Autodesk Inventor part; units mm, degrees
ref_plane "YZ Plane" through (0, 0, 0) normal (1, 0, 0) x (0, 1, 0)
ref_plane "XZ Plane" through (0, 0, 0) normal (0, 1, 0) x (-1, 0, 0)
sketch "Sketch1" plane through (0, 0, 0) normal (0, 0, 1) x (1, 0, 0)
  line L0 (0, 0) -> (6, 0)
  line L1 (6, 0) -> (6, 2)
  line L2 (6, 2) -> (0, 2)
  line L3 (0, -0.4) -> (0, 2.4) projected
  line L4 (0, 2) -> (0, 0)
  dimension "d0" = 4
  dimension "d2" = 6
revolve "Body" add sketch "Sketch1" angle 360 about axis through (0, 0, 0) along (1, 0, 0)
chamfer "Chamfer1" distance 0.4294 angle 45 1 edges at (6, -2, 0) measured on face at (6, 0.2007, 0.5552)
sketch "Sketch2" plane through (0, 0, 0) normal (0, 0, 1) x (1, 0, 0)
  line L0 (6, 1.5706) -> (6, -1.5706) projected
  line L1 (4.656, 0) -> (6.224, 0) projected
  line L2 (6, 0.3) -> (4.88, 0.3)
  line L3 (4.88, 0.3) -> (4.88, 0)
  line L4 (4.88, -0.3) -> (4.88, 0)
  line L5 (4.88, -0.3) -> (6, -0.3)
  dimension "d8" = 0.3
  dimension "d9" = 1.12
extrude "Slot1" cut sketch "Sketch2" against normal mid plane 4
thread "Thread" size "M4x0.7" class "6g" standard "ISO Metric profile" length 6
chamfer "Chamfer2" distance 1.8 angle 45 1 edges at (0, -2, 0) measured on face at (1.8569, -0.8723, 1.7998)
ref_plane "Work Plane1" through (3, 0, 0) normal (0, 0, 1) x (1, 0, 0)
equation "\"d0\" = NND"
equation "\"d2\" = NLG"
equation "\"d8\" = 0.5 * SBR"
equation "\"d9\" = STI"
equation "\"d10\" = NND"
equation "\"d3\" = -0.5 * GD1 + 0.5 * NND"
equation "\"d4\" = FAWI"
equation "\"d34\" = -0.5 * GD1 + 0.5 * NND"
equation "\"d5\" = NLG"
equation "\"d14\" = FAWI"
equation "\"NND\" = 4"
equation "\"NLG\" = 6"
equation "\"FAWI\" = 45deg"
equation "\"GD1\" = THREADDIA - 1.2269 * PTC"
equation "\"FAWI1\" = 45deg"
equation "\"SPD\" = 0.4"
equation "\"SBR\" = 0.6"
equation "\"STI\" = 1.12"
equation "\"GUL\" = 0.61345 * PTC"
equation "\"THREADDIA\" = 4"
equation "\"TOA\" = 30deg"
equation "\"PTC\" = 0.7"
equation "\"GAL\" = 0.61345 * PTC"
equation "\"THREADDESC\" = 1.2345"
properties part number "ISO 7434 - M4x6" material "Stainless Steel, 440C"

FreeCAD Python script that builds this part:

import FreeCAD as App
import Part
import Sketcher

V = App.Vector
Q = App.Units.Quantity


def edges_at(feature, points):
    """Names of the edges that pass closest to the given points."""
    edges = feature.Shape.Edges
    near = lambda p: min(range(len(edges)), key=lambda i: edges[i].distToShape(Part.Vertex(*p))[0])
    return sorted({f"Edge{near(p) + 1}" for p in points})


def add_polygon(sketch, points):
    """Adds a closed chain of lines whose ends are joined by coincident constraints."""
    first, n = sketch.GeometryCount, len(points)
    for a, b in zip(points, points[1:] + points[:1]):
        sketch.addGeometry(Part.LineSegment(App.Vector(*a, 0), App.Vector(*b, 0)), False)
    for i in range(n):
        sketch.addConstraint(Sketcher.Constraint("Coincident", first + i, 2, first + (i + 1) % n, 1))

doc = App.newDocument("Part")
body = doc.addObject("PartDesign::Body", "Body")

sketch1 = body.newObject("Sketcher::SketchObject", "Sketch")
sketch1.AttachmentSupport = (doc.getObject("XY_Plane"), [""])
sketch1.MapMode = "FlatFace"
add_polygon(sketch1, [(0, 2), (0, 0), (6, 0), (6, 2)])
sketch1.addConstraint([
    Sketcher.Constraint("Vertical", 0),
    Sketcher.Constraint("Horizontal", 1),
    Sketcher.Constraint("Vertical", 2),
    Sketcher.Constraint("Horizontal", 3),
    Sketcher.Constraint("Coincident", 0, 2, -1, 1),
    Sketcher.Constraint("DistanceX", 1, 1, 1, 2, Q("6 mm")),
    Sketcher.Constraint("DistanceY", 0, 2, 0, 1, Q("2 mm")),
])
revolution = body.newObject("PartDesign::Revolution", "Revolution")
revolution.Profile = sketch1
revolution.ReferenceAxis = (sketch1, ["H_Axis"])
revolution.Angle = 360
doc.recompute()

chamfer = body.newObject("PartDesign::Chamfer", "Chamfer")
chamfer.Base = (revolution, edges_at(revolution, [(6, -2, 0)]))
chamfer.Size = 0.4294

sketch2 = body.newObject("Sketcher::SketchObject", "Sketch001")
sketch2.AttachmentSupport = (doc.getObject("XY_Plane"), [""])
sketch2.MapMode = "FlatFace"
add_polygon(sketch2, [(6, 0.3), (4.9, 0.3), (4.9, -0.3), (6, -0.3)])
sketch2.addConstraint([
    Sketcher.Constraint("Horizontal", 0),
    Sketcher.Constraint("Vertical", 1),
    Sketcher.Constraint("Horizontal", 2),
    Sketcher.Constraint("Vertical", 3),
    Sketcher.Constraint("DistanceX", 0, 2, 0, 1, Q("1.12 mm")),
    Sketcher.Constraint("DistanceY", -1, 1, 0, 2, Q("0.3 mm")),
    Sketcher.Constraint("DistanceY", 1, 2, -1, 1, Q("0.3 mm")),
    Sketcher.Constraint("DistanceX", -1, 1, 2, 2, Q("6 mm")),
])
pocket1 = body.newObject("PartDesign::Pocket", "Pocket")
pocket1.Profile = sketch2
pocket1.Length = 4
pocket1.Midplane = True
doc.recompute()

chamfer2 = body.newObject("PartDesign::Chamfer", "Chamfer001")
chamfer2.Base = (pocket1, edges_at(pocket1, [(0, -2, 0)]))
chamfer2.Size = 1.8

doc.recompute()
